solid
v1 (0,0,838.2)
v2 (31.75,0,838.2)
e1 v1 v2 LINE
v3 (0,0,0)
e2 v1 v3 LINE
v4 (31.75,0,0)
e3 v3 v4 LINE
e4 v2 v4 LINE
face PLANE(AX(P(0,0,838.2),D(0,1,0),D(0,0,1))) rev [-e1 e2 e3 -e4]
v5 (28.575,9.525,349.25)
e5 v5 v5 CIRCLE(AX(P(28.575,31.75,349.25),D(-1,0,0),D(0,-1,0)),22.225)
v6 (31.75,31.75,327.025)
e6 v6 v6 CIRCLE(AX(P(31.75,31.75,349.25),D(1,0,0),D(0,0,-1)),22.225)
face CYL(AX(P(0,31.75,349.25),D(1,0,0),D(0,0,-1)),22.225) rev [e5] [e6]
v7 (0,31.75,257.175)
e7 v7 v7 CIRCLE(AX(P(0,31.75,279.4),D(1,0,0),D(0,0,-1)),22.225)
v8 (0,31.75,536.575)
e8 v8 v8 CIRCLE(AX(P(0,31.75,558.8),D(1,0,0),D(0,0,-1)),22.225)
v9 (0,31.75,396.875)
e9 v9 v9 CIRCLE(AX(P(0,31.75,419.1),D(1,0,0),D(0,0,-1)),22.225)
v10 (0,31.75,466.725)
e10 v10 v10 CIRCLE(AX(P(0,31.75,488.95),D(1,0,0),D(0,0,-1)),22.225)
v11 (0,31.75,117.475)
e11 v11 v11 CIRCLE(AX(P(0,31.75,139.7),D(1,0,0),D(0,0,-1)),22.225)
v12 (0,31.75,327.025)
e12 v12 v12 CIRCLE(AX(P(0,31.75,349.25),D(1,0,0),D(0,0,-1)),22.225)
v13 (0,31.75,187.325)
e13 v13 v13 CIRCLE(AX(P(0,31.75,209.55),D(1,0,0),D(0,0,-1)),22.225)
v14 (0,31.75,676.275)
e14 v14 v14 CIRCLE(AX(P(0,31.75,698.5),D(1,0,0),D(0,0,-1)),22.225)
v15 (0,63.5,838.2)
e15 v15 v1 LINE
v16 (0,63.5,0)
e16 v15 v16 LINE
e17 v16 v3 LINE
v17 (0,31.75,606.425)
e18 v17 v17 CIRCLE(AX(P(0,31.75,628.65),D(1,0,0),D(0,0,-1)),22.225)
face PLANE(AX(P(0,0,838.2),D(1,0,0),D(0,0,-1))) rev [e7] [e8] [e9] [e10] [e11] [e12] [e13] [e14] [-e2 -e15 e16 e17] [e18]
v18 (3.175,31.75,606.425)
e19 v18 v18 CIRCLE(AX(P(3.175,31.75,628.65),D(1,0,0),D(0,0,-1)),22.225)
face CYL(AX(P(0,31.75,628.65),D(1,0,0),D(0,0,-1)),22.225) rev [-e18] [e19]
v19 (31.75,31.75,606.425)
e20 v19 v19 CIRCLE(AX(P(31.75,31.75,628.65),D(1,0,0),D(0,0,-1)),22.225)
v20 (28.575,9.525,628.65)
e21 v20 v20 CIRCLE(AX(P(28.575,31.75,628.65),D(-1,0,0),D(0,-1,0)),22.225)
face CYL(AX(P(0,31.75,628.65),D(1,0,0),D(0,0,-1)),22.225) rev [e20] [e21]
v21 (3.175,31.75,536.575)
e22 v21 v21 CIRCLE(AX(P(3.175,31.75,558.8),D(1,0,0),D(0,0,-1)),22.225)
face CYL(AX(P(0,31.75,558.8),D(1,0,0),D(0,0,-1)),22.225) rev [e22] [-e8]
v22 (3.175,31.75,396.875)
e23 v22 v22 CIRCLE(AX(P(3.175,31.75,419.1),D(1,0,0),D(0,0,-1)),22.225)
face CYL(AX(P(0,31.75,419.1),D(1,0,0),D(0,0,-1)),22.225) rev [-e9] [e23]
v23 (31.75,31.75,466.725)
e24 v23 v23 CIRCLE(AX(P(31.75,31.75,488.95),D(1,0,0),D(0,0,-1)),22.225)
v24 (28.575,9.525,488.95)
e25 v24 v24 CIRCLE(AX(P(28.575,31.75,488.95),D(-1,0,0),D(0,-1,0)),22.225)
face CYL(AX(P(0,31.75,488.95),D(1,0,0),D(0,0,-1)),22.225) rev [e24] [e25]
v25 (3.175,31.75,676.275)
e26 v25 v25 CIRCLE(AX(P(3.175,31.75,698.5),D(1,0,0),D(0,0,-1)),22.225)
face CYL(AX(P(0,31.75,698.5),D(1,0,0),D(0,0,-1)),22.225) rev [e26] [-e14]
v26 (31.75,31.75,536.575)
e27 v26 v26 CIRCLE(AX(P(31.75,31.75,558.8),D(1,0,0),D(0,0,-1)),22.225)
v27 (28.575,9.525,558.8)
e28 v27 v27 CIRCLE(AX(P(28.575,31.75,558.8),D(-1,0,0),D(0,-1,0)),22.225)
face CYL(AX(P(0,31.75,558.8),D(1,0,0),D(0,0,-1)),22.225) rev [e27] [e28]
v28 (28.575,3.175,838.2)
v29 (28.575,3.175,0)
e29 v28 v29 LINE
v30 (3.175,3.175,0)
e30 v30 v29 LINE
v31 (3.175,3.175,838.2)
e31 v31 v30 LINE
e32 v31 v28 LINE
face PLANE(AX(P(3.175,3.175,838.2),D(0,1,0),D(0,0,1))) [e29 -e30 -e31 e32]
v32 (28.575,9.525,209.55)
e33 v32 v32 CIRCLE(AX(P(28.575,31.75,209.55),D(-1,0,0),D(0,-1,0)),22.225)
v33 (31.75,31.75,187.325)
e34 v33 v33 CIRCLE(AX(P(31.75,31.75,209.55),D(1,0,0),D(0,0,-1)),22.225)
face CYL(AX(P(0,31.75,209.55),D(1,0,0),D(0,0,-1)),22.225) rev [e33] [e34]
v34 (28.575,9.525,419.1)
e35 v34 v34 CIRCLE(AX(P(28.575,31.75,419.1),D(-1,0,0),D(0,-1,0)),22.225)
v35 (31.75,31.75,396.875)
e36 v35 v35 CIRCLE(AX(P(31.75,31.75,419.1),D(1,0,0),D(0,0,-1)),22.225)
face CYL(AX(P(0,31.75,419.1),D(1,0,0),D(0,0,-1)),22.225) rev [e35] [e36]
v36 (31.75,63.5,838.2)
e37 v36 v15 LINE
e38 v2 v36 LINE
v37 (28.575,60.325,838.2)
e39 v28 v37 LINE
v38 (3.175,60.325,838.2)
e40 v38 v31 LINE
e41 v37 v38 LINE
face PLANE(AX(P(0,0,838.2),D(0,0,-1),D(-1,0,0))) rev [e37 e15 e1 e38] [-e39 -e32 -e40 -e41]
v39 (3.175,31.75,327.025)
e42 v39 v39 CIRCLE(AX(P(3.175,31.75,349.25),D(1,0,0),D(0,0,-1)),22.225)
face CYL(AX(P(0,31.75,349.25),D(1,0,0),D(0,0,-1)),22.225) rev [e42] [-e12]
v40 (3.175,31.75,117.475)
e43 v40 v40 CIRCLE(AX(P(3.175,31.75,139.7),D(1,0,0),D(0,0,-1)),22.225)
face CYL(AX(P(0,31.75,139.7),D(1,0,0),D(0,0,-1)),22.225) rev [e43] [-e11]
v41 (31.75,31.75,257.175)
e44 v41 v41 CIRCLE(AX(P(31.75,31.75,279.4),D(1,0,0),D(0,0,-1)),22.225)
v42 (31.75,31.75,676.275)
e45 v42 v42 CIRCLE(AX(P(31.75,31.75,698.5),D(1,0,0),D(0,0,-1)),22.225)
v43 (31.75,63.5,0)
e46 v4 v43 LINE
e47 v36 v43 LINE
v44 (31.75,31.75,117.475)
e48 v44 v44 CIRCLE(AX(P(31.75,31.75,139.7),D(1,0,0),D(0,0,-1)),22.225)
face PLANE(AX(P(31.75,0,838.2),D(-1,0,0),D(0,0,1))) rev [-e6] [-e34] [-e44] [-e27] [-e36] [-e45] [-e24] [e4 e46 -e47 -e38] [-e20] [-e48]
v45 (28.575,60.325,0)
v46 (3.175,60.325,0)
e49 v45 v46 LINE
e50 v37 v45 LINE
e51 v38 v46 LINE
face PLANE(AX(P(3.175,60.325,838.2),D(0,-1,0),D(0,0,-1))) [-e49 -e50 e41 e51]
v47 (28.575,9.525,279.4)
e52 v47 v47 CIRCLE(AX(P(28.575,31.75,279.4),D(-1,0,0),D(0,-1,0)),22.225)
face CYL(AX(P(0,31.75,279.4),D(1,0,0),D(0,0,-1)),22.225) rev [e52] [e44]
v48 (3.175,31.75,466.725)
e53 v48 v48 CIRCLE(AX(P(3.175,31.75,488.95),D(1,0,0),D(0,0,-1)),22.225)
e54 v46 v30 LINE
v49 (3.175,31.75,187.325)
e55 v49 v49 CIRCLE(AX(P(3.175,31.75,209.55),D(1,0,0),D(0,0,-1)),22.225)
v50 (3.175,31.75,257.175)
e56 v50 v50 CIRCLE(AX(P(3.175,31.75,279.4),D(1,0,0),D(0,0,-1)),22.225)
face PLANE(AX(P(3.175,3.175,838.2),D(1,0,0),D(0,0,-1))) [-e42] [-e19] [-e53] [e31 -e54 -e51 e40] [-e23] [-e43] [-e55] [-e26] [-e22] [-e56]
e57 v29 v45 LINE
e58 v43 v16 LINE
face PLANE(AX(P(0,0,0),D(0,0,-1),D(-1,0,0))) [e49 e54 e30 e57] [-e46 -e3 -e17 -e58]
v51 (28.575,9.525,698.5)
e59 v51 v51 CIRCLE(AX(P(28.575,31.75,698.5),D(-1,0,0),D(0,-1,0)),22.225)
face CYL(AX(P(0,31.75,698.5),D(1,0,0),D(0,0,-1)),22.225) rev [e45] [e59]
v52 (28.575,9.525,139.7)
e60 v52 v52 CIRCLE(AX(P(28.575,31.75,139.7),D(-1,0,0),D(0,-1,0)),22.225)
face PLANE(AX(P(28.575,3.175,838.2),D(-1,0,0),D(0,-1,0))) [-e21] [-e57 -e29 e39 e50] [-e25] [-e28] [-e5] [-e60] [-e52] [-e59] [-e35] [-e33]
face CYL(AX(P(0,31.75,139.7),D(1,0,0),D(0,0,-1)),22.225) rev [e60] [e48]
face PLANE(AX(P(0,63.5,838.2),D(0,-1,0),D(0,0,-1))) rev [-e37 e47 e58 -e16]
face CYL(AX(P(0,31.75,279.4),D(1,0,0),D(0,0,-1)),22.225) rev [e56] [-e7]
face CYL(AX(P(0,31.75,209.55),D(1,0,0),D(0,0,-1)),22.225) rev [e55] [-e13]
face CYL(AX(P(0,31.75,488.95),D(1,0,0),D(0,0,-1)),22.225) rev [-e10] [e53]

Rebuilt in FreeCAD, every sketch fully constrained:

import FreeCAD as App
import Part
import Sketcher
from FreeCAD import Vector
Q = App.Units.Quantity

doc = App.newDocument("Part")
body = doc.addObject("PartDesign::Body", "Body")

# Sketch on XY plane
sketch1 = doc.addObject("Sketcher::SketchObject", "Sketch")
body.addObject(sketch1)
sketch1.AttachmentSupport = (doc.XY_Plane, [""])
sketch1.MapMode = "FlatFace"
sketch1.addGeometry(Part.LineSegment(Vector(0, 63.5, 0), Vector(0, 0, 0)), False)
sketch1.addGeometry(Part.LineSegment(Vector(0, 0, 0), Vector(31.75, 0, 0)), False)
sketch1.addGeometry(Part.LineSegment(Vector(31.75, 0, 0), Vector(31.75, 63.5, 0)), False)
sketch1.addGeometry(Part.LineSegment(Vector(31.75, 63.5, 0), Vector(0, 63.5, 0)), False)
sketch1.addGeometry(Part.LineSegment(Vector(28.575, 3.175, 0), Vector(3.175, 3.175, 0)), False)
sketch1.addGeometry(Part.LineSegment(Vector(3.175, 3.175, 0), Vector(3.175, 60.325, 0)), False)
sketch1.addGeometry(Part.LineSegment(Vector(3.175, 60.325, 0), Vector(28.575, 60.325, 0)), False)
sketch1.addGeometry(Part.LineSegment(Vector(28.575, 60.325, 0), Vector(28.575, 3.175, 0)), False)
sketch1.addConstraint(Sketcher.Constraint("Coincident", 0, 2, 1, 1))
sketch1.addConstraint(Sketcher.Constraint("Coincident", 1, 2, 2, 1))
sketch1.addConstraint(Sketcher.Constraint("Coincident", 2, 2, 3, 1))
sketch1.addConstraint(Sketcher.Constraint("Coincident", 3, 2, 0, 1))
sketch1.addConstraint(Sketcher.Constraint("Coincident", 4, 2, 5, 1))
sketch1.addConstraint(Sketcher.Constraint("Coincident", 5, 2, 6, 1))
sketch1.addConstraint(Sketcher.Constraint("Coincident", 6, 2, 7, 1))
sketch1.addConstraint(Sketcher.Constraint("Coincident", 7, 2, 4, 1))
sketch1.addConstraint(Sketcher.Constraint("Vertical", 0))
sketch1.addConstraint(Sketcher.Constraint("Horizontal", 1))
sketch1.addConstraint(Sketcher.Constraint("Vertical", 2))
sketch1.addConstraint(Sketcher.Constraint("Horizontal", 3))
sketch1.addConstraint(Sketcher.Constraint("Horizontal", 4))
sketch1.addConstraint(Sketcher.Constraint("Vertical", 5))
sketch1.addConstraint(Sketcher.Constraint("Horizontal", 6))
sketch1.addConstraint(Sketcher.Constraint("Vertical", 7))
sketch1.addConstraint(Sketcher.Constraint("Coincident", 0, 2, -1, 1))
sketch1.addConstraint(Sketcher.Constraint("DistanceX", 4, 2, 4, 1, Q("1 in")))
sketch1.addConstraint(Sketcher.Constraint("DistanceY", 0, 2, 0, 1, Q("2.5 in")))
sketch1.addConstraint(Sketcher.Constraint("DistanceX", 1, 1, 1, 2, Q("1.25 in")))
sketch1.addConstraint(Sketcher.Constraint("DistanceY", 5, 1, 5, 2, Q("2.25 in")))
sketch1.addConstraint(Sketcher.Constraint("DistanceX", -1, 1, 4, 2, Q("0.125 in")))
sketch1.addConstraint(Sketcher.Constraint("DistanceY", -1, 1, 4, 2, Q("0.125 in")))
pad1 = doc.addObject("PartDesign::Pad", "Pad")
body.addObject(pad1)
pad1.Profile = sketch1
pad1.Length = Q("33 in")

# Sketch on YZ plane
sketch2 = doc.addObject("Sketcher::SketchObject", "Sketch001")
body.addObject(sketch2)
sketch2.AttachmentSupport = (doc.YZ_Plane, [""])
sketch2.MapMode = "FlatFace"
sketch2.AttachmentOffset = App.Placement(Vector(0, 0, 1.25 * 25.4), App.Rotation())
sketch2.addGeometry(Part.Circle(Vector(31.75, 698.5, 0), Vector(0, 0, 1), 22.225), False)
sketch2.addGeometry(Part.Circle(Vector(31.75, 628.65, 0), Vector(0, 0, 1), 22.225), False)
sketch2.addGeometry(Part.Circle(Vector(31.75, 558.8, 0), Vector(0, 0, 1), 22.225), False)
sketch2.addGeometry(Part.Circle(Vector(31.75, 488.95, 0), Vector(0, 0, 1), 22.225), False)
sketch2.addGeometry(Part.Circle(Vector(31.75, 419.1, 0), Vector(0, 0, 1), 22.225), False)
sketch2.addGeometry(Part.Circle(Vector(31.75, 349.25, 0), Vector(0, 0, 1), 22.225), False)
sketch2.addGeometry(Part.Circle(Vector(31.75, 279.4, 0), Vector(0, 0, 1), 22.225), False)
sketch2.addGeometry(Part.Circle(Vector(31.75, 209.55, 0), Vector(0, 0, 1), 22.225), False)
sketch2.addGeometry(Part.Circle(Vector(31.75, 139.7, 0), Vector(0, 0, 1), 22.225), False)
sketch2.addConstraint(Sketcher.Constraint("Equal", 0, 1))
sketch2.addConstraint(Sketcher.Constraint("Equal", 1, 2))
sketch2.addConstraint(Sketcher.Constraint("Equal", 2, 3))
sketch2.addConstraint(Sketcher.Constraint("Equal", 3, 4))
sketch2.addConstraint(Sketcher.Constraint("Equal", 4, 5))
sketch2.addConstraint(Sketcher.Constraint("Equal", 5, 6))
sketch2.addConstraint(Sketcher.Constraint("Equal", 6, 7))
sketch2.addConstraint(Sketcher.Constraint("Equal", 7, 8))
sketch2.addConstraint(Sketcher.Constraint("Vertical", 0, 3, 1, 3))
sketch2.addConstraint(Sketcher.Constraint("Vertical", 1, 3, 2, 3))
sketch2.addConstraint(Sketcher.Constraint("Vertical", 2, 3, 3, 3))
sketch2.addConstraint(Sketcher.Constraint("Vertical", 3, 3, 4, 3))
sketch2.addConstraint(Sketcher.Constraint("Vertical", 4, 3, 5, 3))
sketch2.addConstraint(Sketcher.Constraint("Vertical", 5, 3, 6, 3))
sketch2.addConstraint(Sketcher.Constraint("Vertical", 6, 3, 7, 3))
sketch2.addConstraint(Sketcher.Constraint("Vertical", 7, 3, 8, 3))
sketch2.addConstraint(Sketcher.Constraint("Diameter", 0, Q("1.75 in")))
sketch2.addConstraint(Sketcher.Constraint("DistanceY", -1, 1, 2, 3, Q("22 in")))
sketch2.addConstraint(Sketcher.Constraint("DistanceY", -1, 1, 6, 3, Q("11 in")))
sketch2.addConstraint(Sketcher.Constraint("DistanceY", 4, 3, 0, 3, Q("11 in")))
sketch2.addConstraint(Sketcher.Constraint("DistanceY", 5, 3, 1, 3, Q("11 in")))
sketch2.addConstraint(Sketcher.Constraint("DistanceY", 7, 3, 3, 3, Q("11 in")))
sketch2.addConstraint(Sketcher.Constraint("DistanceY", 8, 3, 4, 3, Q("11 in")))
sketch2.addConstraint(Sketcher.Constraint("DistanceY", -1, 1, 0, 3, Q("27.5 in")))
sketch2.addConstraint(Sketcher.Constraint("DistanceY", 3, 3, 1, 3, Q("5.5 in")))
sketch2.addConstraint(Sketcher.Constraint("DistanceX", -1, 1, 0, 3, Q("1.25 in")))
sketch2.addConstraint(Sketcher.Constraint("DistanceY", -1, 1, 1, 3, Q("24.75 in")))
pocket1 = doc.addObject("PartDesign::Pocket", "Pocket")
body.addObject(pocket1)
pocket1.Profile = sketch2
pocket1.Length = Q("1.25 in")

doc.recompute()
